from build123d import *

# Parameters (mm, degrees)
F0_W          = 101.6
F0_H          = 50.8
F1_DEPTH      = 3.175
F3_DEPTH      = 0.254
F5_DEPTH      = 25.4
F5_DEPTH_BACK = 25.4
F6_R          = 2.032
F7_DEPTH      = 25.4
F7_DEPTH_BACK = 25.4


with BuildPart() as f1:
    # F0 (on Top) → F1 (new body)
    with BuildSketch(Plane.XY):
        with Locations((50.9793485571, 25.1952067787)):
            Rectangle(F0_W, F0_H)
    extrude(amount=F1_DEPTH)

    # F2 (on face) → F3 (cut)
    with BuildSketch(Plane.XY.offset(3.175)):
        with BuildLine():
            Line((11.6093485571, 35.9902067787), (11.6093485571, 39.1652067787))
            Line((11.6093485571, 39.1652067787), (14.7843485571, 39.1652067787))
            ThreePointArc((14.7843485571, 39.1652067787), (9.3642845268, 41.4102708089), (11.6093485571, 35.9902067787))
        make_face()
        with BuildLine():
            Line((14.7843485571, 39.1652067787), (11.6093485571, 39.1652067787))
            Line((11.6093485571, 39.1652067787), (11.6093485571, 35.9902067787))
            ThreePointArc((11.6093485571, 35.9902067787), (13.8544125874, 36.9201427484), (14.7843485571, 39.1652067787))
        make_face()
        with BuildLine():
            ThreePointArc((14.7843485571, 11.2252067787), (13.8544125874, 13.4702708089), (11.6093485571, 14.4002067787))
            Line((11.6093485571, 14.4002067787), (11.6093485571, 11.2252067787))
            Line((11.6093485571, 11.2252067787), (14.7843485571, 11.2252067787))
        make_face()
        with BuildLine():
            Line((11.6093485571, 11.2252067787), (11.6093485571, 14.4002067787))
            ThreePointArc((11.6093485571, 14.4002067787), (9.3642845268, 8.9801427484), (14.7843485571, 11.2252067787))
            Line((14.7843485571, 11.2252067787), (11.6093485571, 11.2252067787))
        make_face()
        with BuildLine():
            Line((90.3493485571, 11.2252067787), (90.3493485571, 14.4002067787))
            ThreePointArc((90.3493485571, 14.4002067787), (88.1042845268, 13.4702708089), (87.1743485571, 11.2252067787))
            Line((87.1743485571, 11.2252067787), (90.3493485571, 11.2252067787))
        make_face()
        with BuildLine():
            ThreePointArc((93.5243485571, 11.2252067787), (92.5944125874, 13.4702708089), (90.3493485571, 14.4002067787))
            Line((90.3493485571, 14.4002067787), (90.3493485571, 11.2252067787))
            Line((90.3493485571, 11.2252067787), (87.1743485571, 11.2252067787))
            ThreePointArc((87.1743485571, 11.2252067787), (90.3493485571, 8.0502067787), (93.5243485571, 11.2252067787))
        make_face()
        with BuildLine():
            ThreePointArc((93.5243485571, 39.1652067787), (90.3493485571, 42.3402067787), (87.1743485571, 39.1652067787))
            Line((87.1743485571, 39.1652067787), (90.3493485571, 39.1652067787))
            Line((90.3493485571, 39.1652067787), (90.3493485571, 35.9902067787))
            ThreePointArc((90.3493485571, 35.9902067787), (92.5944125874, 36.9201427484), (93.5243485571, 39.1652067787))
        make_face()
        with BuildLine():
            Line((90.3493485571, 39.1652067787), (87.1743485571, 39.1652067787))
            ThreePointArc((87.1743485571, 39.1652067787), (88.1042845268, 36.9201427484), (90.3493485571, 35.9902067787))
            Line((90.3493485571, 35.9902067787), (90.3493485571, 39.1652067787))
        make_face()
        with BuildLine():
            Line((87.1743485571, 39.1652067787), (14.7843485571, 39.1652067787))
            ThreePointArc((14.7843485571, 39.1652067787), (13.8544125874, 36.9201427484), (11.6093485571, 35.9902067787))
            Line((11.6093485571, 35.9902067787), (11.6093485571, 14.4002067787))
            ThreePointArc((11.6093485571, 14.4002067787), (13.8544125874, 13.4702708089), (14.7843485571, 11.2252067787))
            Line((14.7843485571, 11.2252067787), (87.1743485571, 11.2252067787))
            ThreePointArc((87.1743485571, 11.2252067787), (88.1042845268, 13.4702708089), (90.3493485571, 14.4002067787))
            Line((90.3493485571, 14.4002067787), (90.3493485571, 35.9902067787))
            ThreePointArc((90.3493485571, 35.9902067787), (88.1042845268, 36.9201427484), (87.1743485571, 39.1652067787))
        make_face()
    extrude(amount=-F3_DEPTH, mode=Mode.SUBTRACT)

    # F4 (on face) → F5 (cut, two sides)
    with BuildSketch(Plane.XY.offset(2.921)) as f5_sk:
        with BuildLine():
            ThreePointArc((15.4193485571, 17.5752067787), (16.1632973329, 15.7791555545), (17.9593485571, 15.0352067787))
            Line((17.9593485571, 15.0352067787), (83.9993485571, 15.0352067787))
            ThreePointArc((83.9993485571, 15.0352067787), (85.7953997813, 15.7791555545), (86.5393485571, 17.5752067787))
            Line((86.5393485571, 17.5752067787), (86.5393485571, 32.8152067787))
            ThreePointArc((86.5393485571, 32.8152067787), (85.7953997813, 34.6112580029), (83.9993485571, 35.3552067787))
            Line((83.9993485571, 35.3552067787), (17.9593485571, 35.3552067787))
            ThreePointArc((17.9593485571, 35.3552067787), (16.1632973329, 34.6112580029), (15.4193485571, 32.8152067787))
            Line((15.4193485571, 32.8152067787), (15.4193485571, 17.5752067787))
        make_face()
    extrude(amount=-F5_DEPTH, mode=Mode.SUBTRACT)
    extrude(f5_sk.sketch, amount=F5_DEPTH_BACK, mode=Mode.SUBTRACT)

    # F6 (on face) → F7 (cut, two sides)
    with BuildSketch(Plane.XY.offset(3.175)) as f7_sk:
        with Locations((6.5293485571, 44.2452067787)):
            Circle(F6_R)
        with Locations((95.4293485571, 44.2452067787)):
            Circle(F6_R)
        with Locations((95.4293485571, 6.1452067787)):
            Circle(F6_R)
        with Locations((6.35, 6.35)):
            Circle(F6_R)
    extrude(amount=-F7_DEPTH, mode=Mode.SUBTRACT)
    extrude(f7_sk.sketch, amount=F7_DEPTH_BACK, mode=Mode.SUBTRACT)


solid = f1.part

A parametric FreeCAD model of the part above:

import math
import FreeCAD as App
import Part
import Sketcher
from FreeCAD import Vector
Q = App.Units.Quantity


def add_polygon(sketch, points):
    """Adds a closed chain of lines whose ends are joined by coincident constraints."""
    first, n = sketch.GeometryCount, len(points)
    for a, b in zip(points, points[1:] + points[:1]):
        sketch.addGeometry(Part.LineSegment(App.Vector(*a, 0), App.Vector(*b, 0)), False)
    for i in range(n):
        sketch.addConstraint(Sketcher.Constraint("Coincident", first + i, 2, first + (i + 1) % n, 1))

doc = App.newDocument("Part")
body = doc.addObject("PartDesign::Body", "Body")

# Sketch on XY plane
sketch1 = doc.addObject("Sketcher::SketchObject", "Sketch")
body.addObject(sketch1)
sketch1.AttachmentSupport = (doc.XY_Plane, [""])
sketch1.MapMode = "FlatFace"
add_polygon(sketch1, [(0, 51), (0, 0), (102, 0), (102, 51)])  # lines 0-3
sketch1.addConstraint(Sketcher.Constraint("Vertical", 0))
sketch1.addConstraint(Sketcher.Constraint("Horizontal", 1))
sketch1.addConstraint(Sketcher.Constraint("Vertical", 2))
sketch1.addConstraint(Sketcher.Constraint("Horizontal", 3))
sketch1.addConstraint(Sketcher.Constraint("DistanceX", 1, 1, 1, 2, Q("4 in")))
sketch1.addConstraint(Sketcher.Constraint("DistanceY", 0, 2, 0, 1, Q("2 in")))
sketch1.addConstraint(Sketcher.Constraint("DistanceX", -1, 1, 0, 2, Q("0.179349 mm")))
sketch1.addConstraint(Sketcher.Constraint("DistanceY", 0, 2, -1, 1, Q("0.204793 mm")))
pad1 = doc.addObject("PartDesign::Pad", "Pad")
body.addObject(pad1)
pad1.Profile = sketch1
pad1.Length = Q("0.125 in")

# Sketch on XY plane
sketch2 = doc.addObject("Sketcher::SketchObject", "Sketch001")
body.addObject(sketch2)
sketch2.AttachmentSupport = (doc.XY_Plane, [""])
sketch2.MapMode = "FlatFace"
sketch2.AttachmentOffset = App.Placement(Vector(0, 0, 0.125 * 25.4), App.Rotation())
sketch2.addGeometry(Part.ArcOfCircle(Part.Circle(Vector(11.6, 39.2, 0), Vector(0, 0, 1), 3.2), math.radians(0), math.radians(270)), False)
sketch2.addGeometry(Part.LineSegment(Vector(11.6, 36, 0), Vector(11.6, 14.4, 0)), False)
sketch2.addGeometry(Part.ArcOfCircle(Part.Circle(Vector(11.6, 11.2, 0), Vector(0, 0, 1), 3.2), math.radians(90), math.radians(360)), False)
sketch2.addGeometry(Part.LineSegment(Vector(14.8, 11.2, 0), Vector(87.2, 11.2, 0)), False)
sketch2.addGeometry(Part.ArcOfCircle(Part.Circle(Vector(90.3, 11.2, 0), Vector(0, 0, 1), 3.2), math.radians(180), math.radians(360)), False)
sketch2.addGeometry(Part.ArcOfCircle(Part.Circle(Vector(90.3, 11.2, 0), Vector(0, 0, 1), 3.2), math.radians(0), math.radians(90)), False)
sketch2.addGeometry(Part.LineSegment(Vector(90.3, 14.4, 0), Vector(90.3, 36, 0)), False)
sketch2.addGeometry(Part.ArcOfCircle(Part.Circle(Vector(90.3, 39.2, 0), Vector(0, 0, 1), 3.2), math.radians(-90), math.radians(0)), False)
sketch2.addGeometry(Part.ArcOfCircle(Part.Circle(Vector(90.3, 39.2, 0), Vector(0, 0, 1), 3.2), math.radians(0), math.radians(180)), False)
sketch2.addGeometry(Part.LineSegment(Vector(87.2, 39.2, 0), Vector(14.8, 39.2, 0)), False)
sketch2.addConstraint(Sketcher.Constraint("Coincident", 0, 2, 1, 1))
sketch2.addConstraint(Sketcher.Constraint("Coincident", 1, 2, 2, 1))
sketch2.addConstraint(Sketcher.Constraint("Coincident", 2, 2, 3, 1))
sketch2.addConstraint(Sketcher.Constraint("Coincident", 3, 2, 4, 1))
sketch2.addConstraint(Sketcher.Constraint("Tangent", 4, 2, 5, 1))
sketch2.addConstraint(Sketcher.Constraint("Coincident", 5, 2, 6, 1))
sketch2.addConstraint(Sketcher.Constraint("Coincident", 6, 2, 7, 1))
sketch2.addConstraint(Sketcher.Constraint("Tangent", 7, 2, 8, 1))
sketch2.addConstraint(Sketcher.Constraint("Coincident", 8, 2, 9, 1))
sketch2.addConstraint(Sketcher.Constraint("Coincident", 9, 2, 0, 1))
sketch2.addConstraint(Sketcher.Constraint("Vertical", 1))
sketch2.addConstraint(Sketcher.Constraint("Horizontal", 3))
sketch2.addConstraint(Sketcher.Constraint("Vertical", 6))
sketch2.addConstraint(Sketcher.Constraint("Horizontal", 9))
sketch2.addConstraint(Sketcher.Constraint("Equal", 0, 2))
sketch2.addConstraint(Sketcher.Constraint("Equal", 2, 4))
sketch2.addConstraint(Sketcher.Constraint("Equal", 4, 5))
sketch2.addConstraint(Sketcher.Constraint("Equal", 5, 7))
sketch2.addConstraint(Sketcher.Constraint("Equal", 7, 8))
sketch2.addConstraint(Sketcher.Constraint("Horizontal", 2, 3, 4, 3))
sketch2.addConstraint(Sketcher.Constraint("Horizontal", 0, 3, 7, 3))
sketch2.addConstraint(Sketcher.Constraint("Horizontal", 5, 3, 2, 2))
sketch2.addConstraint(Sketcher.Constraint("Horizontal", 3, 2, 4, 2))
sketch2.addConstraint(Sketcher.Constraint("Horizontal", 8, 3, 7, 2))
sketch2.addConstraint(Sketcher.Constraint("Horizontal", 7, 2, 8, 2))
sketch2.addConstraint(Sketcher.Constraint("Vertical", 0, 3, 2, 3))
sketch2.addConstraint(Sketcher.Constraint("Vertical", 5, 3, 7, 3))
sketch2.addConstraint(Sketcher.Constraint("Vertical", 2, 3, 0, 2))
sketch2.addConstraint(Sketcher.Constraint("Vertical", 8, 3, 5, 2))
sketch2.addConstraint(Sketcher.Constraint("Radius", 0, Q("0.125 in")))
sketch2.addConstraint(Sketcher.Constraint("DistanceX", 3, 1, 3, 2, Q("2.85 in")))
sketch2.addConstraint(Sketcher.Constraint("DistanceY", 1, 2, 1, 1, Q("0.85 in")))
sketch2.addConstraint(Sketcher.Constraint("DistanceX", -1, 1, 0, 3, Q("11.609349 mm")))
sketch2.addConstraint(Sketcher.Constraint("DistanceY", -1, 1, 0, 3, Q("39.165207 mm")))
pocket1 = doc.addObject("PartDesign::Pocket", "Pocket")
body.addObject(pocket1)
pocket1.Profile = sketch2
pocket1.Length = Q("0.01 in")

# Sketch on XY plane
sketch3 = doc.addObject("Sketcher::SketchObject", "Sketch002")
body.addObject(sketch3)
sketch3.AttachmentSupport = (doc.XY_Plane, [""])
sketch3.MapMode = "FlatFace"
sketch3.AttachmentOffset = App.Placement(Vector(0, 0, 0.115 * 25.4), App.Rotation())
sketch3.addGeometry(Part.ArcOfCircle(Part.Circle(Vector(18, 17.6, 0), Vector(0, 0, 1), 2.5), math.radians(180), math.radians(270)), False)
sketch3.addGeometry(Part.LineSegment(Vector(18, 15, 0), Vector(84, 15, 0)), False)
sketch3.addGeometry(Part.ArcOfCircle(Part.Circle(Vector(84, 17.6, 0), Vector(0, 0, 1), 2.5), math.radians(-90), math.radians(0)), False)
sketch3.addGeometry(Part.LineSegment(Vector(86.5, 17.6, 0), Vector(86.5, 32.8, 0)), False)
sketch3.addGeometry(Part.ArcOfCircle(Part.Circle(Vector(84, 32.8, 0), Vector(0, 0, 1), 2.5), math.radians(0), math.radians(90)), False)
sketch3.addGeometry(Part.LineSegment(Vector(84, 35.4, 0), Vector(18, 35.4, 0)), False)
sketch3.addGeometry(Part.ArcOfCircle(Part.Circle(Vector(18, 32.8, 0), Vector(0, 0, 1), 2.5), math.radians(90), math.radians(180)), False)
sketch3.addGeometry(Part.LineSegment(Vector(15.4, 32.8, 0), Vector(15.4, 17.6, 0)), False)
sketch3.addConstraint(Sketcher.Constraint("Tangent", 0, 2, 1, 1))
sketch3.addConstraint(Sketcher.Constraint("Tangent", 1, 2, 2, 1))
sketch3.addConstraint(Sketcher.Constraint("Tangent", 2, 2, 3, 1))
sketch3.addConstraint(Sketcher.Constraint("Tangent", 3, 2, 4, 1))
sketch3.addConstraint(Sketcher.Constraint("Tangent", 4, 2, 5, 1))
sketch3.addConstraint(Sketcher.Constraint("Tangent", 5, 2, 6, 1))
sketch3.addConstraint(Sketcher.Constraint("Tangent", 6, 2, 7, 1))
sketch3.addConstraint(Sketcher.Constraint("Tangent", 7, 2, 0, 1))
sketch3.addConstraint(Sketcher.Constraint("Horizontal", 1))
sketch3.addConstraint(Sketcher.Constraint("Vertical", 3))
sketch3.addConstraint(Sketcher.Constraint("Horizontal", 5))
sketch3.addConstraint(Sketcher.Constraint("Vertical", 7))
sketch3.addConstraint(Sketcher.Constraint("Equal", 0, 2))
sketch3.addConstraint(Sketcher.Constraint("Equal", 2, 4))
sketch3.addConstraint(Sketcher.Constraint("Equal", 4, 6))
sketch3.addConstraint(Sketcher.Constraint("Radius", 0, Q("0.1 in")))
sketch3.addConstraint(Sketcher.Constraint("DistanceX", 1, 1, 1, 2, Q("2.6 in")))
sketch3.addConstraint(Sketcher.Constraint("DistanceY", 3, 1, 3, 2, Q("0.6 in")))
sketch3.addConstraint(Sketcher.Constraint("DistanceX", -1, 1, 0, 3, Q("17.959349 mm")))
sketch3.addConstraint(Sketcher.Constraint("DistanceY", -1, 1, 0, 3, Q("17.575207 mm")))
pocket2 = doc.addObject("PartDesign::Pocket", "Pocket001")
body.addObject(pocket2)
pocket2.Profile = sketch3
pocket2.Type = "ThroughAll"
pocket2.Midplane = True

# Sketch on XY plane
sketch4 = doc.addObject("Sketcher::SketchObject", "Sketch003")
body.addObject(sketch4)
sketch4.AttachmentSupport = (doc.XY_Plane, [""])
sketch4.MapMode = "FlatFace"
sketch4.AttachmentOffset = App.Placement(Vector(0, 0, 0.125 * 25.4), App.Rotation())
sketch4.addGeometry(Part.Circle(Vector(6.5, 44.2, 0), Vector(0, 0, 1), 2), False)
sketch4.addGeometry(Part.Circle(Vector(95.4, 44.2, 0), Vector(0, 0, 1), 2), False)
sketch4.addGeometry(Part.Circle(Vector(95.4, 6.1, 0), Vector(0, 0, 1), 2), False)
sketch4.addGeometry(Part.Circle(Vector(6.3, 6.3, 0), Vector(0, 0, 1), 2), False)
sketch4.addConstraint(Sketcher.Constraint("Equal", 0, 1))
sketch4.addConstraint(Sketcher.Constraint("Equal", 1, 2))
sketch4.addConstraint(Sketcher.Constraint("Equal", 2, 3))
sketch4.addConstraint(Sketcher.Constraint("Horizontal", 0, 3, 1, 3))
sketch4.addConstraint(Sketcher.Constraint("Vertical", 1, 3, 2, 3))
sketch4.addConstraint(Sketcher.Constraint("Diameter", 0, Q("0.16 in")))
sketch4.addConstraint(Sketcher.Constraint("DistanceX", 0, 3, 1, 3, Q("3.5 in")))
sketch4.addConstraint(Sketcher.Constraint("DistanceY", 2, 3, 1, 3, Q("1.5 in")))
sketch4.addConstraint(Sketcher.Constraint("DistanceX", -1, 1, 3, 3, Q("0.25 in")))
sketch4.addConstraint(Sketcher.Constraint("DistanceY", -1, 1, 3, 3, Q("0.25 in")))
sketch4.addConstraint(Sketcher.Constraint("DistanceX", -1, 1, 0, 3, Q("6.529349 mm")))
sketch4.addConstraint(Sketcher.Constraint("DistanceY", -1, 1, 0, 3, Q("44.245207 mm")))
pocket3 = doc.addObject("PartDesign::Pocket", "Pocket002")
body.addObject(pocket3)
pocket3.Profile = sketch4
pocket3.Type = "ThroughAll"
pocket3.Midplane = True

doc.recompute()
